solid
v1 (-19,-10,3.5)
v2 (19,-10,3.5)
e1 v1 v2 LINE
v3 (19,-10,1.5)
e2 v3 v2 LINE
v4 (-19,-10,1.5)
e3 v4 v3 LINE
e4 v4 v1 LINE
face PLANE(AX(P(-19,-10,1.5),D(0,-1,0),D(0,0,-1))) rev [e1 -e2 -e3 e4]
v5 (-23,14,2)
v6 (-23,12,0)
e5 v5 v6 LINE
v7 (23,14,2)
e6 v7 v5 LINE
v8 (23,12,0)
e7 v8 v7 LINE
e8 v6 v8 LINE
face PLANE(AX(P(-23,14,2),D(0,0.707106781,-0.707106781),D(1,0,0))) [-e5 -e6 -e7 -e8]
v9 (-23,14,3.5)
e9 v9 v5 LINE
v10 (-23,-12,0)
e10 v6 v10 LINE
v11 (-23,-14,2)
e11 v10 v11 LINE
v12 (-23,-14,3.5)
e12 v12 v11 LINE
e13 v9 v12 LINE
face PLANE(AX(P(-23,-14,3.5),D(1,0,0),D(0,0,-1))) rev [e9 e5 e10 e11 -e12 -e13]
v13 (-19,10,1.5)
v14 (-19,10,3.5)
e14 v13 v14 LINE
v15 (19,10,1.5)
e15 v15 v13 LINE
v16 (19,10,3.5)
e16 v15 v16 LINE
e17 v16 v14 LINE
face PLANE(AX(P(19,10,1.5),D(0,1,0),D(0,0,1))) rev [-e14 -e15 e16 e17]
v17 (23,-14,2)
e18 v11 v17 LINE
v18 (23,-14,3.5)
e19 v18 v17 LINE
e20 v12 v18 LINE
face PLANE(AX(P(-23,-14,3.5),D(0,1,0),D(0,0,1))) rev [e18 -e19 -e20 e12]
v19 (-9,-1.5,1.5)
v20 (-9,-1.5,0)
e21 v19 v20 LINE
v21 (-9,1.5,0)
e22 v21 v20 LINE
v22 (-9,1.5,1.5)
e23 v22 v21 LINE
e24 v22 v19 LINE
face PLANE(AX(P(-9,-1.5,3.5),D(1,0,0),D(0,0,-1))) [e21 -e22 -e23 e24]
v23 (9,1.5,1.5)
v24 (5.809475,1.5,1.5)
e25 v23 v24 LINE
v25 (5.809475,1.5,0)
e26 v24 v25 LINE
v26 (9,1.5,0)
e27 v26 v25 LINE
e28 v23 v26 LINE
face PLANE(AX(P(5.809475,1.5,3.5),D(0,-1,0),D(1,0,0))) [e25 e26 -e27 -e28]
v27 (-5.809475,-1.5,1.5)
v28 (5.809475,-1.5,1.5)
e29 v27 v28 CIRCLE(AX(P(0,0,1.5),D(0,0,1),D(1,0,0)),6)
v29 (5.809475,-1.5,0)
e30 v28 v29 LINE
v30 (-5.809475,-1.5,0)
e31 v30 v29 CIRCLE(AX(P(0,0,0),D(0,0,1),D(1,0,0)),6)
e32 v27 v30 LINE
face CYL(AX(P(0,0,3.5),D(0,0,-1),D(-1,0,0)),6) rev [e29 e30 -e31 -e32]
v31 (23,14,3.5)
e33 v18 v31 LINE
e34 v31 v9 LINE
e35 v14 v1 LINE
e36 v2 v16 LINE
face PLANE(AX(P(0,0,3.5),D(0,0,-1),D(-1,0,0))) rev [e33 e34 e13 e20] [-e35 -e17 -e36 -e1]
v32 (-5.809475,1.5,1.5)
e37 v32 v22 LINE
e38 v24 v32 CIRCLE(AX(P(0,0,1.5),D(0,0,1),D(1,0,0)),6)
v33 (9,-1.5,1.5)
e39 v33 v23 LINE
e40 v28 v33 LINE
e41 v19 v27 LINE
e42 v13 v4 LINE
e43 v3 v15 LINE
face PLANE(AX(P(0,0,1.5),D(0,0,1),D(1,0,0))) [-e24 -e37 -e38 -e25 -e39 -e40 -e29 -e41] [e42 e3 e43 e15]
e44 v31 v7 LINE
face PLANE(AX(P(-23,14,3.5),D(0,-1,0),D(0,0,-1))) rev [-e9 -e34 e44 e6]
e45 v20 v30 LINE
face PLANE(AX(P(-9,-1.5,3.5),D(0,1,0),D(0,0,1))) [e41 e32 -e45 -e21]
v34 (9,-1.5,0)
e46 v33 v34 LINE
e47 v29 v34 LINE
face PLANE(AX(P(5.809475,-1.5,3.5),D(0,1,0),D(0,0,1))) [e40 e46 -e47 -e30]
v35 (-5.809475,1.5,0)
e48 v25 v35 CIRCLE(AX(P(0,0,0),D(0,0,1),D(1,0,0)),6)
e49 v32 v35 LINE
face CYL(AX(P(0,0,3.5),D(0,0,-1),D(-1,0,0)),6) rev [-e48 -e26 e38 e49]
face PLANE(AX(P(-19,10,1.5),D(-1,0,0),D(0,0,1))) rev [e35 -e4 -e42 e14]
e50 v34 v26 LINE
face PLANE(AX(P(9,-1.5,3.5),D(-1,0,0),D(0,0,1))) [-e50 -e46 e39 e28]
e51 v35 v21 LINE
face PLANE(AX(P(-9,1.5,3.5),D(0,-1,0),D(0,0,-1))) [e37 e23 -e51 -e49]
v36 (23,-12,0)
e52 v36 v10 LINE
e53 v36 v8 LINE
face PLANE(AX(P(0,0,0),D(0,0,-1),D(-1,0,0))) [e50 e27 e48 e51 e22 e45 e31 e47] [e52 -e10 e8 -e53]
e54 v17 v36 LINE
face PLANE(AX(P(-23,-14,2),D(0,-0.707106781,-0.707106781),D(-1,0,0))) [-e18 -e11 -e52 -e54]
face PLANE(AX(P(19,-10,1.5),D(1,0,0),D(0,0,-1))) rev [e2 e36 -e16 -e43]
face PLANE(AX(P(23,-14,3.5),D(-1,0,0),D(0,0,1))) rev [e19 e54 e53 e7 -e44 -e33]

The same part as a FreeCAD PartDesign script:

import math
import FreeCAD as App
import Part
import Sketcher


def edges_at(feature, points):
    """Names of the edges that pass closest to the given points."""
    edges = feature.Shape.Edges
    near = lambda p: min(range(len(edges)), key=lambda i: edges[i].distToShape(Part.Vertex(*p))[0])
    return sorted({f"Edge{near(p) + 1}" for p in points})


def add_polygon(sketch, points):
    """Adds a closed chain of lines whose ends are joined by coincident constraints."""
    first, n = sketch.GeometryCount, len(points)
    for a, b in zip(points, points[1:] + points[:1]):
        sketch.addGeometry(Part.LineSegment(App.Vector(*a, 0), App.Vector(*b, 0)), False)
    for i in range(n):
        sketch.addConstraint(Sketcher.Constraint("Coincident", first + i, 2, first + (i + 1) % n, 1))

doc = App.newDocument("Part")
body = doc.addObject("PartDesign::Body", "Body")

sketch1 = body.newObject("Sketcher::SketchObject", "Sketch")
sketch1.AttachmentSupport = (doc.getObject("XY_Plane"), [""])
sketch1.MapMode = "FlatFace"
add_polygon(sketch1, [(-23, 14), (-23, -14), (23, -14), (23, 14)])
sketch1.addGeometry(Part.ArcOfCircle(Part.Circle(App.Vector(0, 0, 0), App.Vector(0, 0, 1), 6), math.radians(14), math.radians(166)), False)
sketch1.addGeometry(Part.LineSegment(App.Vector(5.8, 1.5, 0), App.Vector(9, 1.5, 0)), False)
sketch1.addGeometry(Part.LineSegment(App.Vector(9, 1.5, 0), App.Vector(9, -1.5, 0)), False)
sketch1.addGeometry(Part.LineSegment(App.Vector(9, -1.5, 0), App.Vector(5.8, -1.5, 0)), False)
sketch1.addGeometry(Part.ArcOfCircle(Part.Circle(App.Vector(0, 0, 0), App.Vector(0, 0, 1), 6), math.radians(-166), math.radians(-14)), False)
sketch1.addGeometry(Part.LineSegment(App.Vector(-5.8, -1.5, 0), App.Vector(-9, -1.5, 0)), False)
sketch1.addGeometry(Part.LineSegment(App.Vector(-9, -1.5, 0), App.Vector(-9, 1.5, 0)), False)
sketch1.addGeometry(Part.LineSegment(App.Vector(-9, 1.5, 0), App.Vector(-5.8, 1.5, 0)), False)
sketch1.addConstraint([
    Sketcher.Constraint("Coincident", 4, 1, 5, 1),
    Sketcher.Constraint("Coincident", 5, 2, 6, 1),
    Sketcher.Constraint("Coincident", 6, 2, 7, 1),
    Sketcher.Constraint("Coincident", 7, 2, 8, 2),
    Sketcher.Constraint("Coincident", 8, 1, 9, 1),
    Sketcher.Constraint("Coincident", 9, 2, 10, 1),
    Sketcher.Constraint("Coincident", 10, 2, 11, 1),
    Sketcher.Constraint("Coincident", 11, 2, 4, 2),
    Sketcher.Constraint("Vertical", 0),
    Sketcher.Constraint("Horizontal", 1),
    Sketcher.Constraint("Vertical", 2),
    Sketcher.Constraint("Horizontal", 3),
    Sketcher.Constraint("Horizontal", 5),
    Sketcher.Constraint("Vertical", 6),
    Sketcher.Constraint("Horizontal", 7),
    Sketcher.Constraint("Horizontal", 9),
    Sketcher.Constraint("Vertical", 10),
    Sketcher.Constraint("Horizontal", 11),
    Sketcher.Constraint("Coincident", 4, 3, -1, 1),
    Sketcher.Constraint("Coincident", 8, 3, -1, 1),
    Sketcher.Constraint("Equal", 4, 8),
    Sketcher.Constraint("Symmetric", 0, 2, 2, 2, -1, 1),
    Sketcher.Constraint("Symmetric", 5, 2, 9, 2, -1, 1),
    Sketcher.Constraint("Horizontal", 7, 2, 8, 1),
    Sketcher.Constraint("Horizontal", 5, 2, 10, 2),
    Sketcher.Constraint("Radius", 4, 6.0),
    Sketcher.Constraint("DistanceX", 1, 1, 1, 2, 46.0),
    Sketcher.Constraint("DistanceY", 0, 2, 0, 1, 28.0),
    Sketcher.Constraint("DistanceY", 6, 2, 6, 1, 3.0),
    Sketcher.Constraint("DistanceX", -1, 1, 5, 2, 9.0),
])
pad1 = body.newObject("PartDesign::Pad", "Pad")
pad1.Profile = sketch1
pad1.Length = 3.5

sketch2 = body.newObject("Sketcher::SketchObject", "Sketch001")
sketch2.AttachmentSupport = (doc.getObject("XY_Plane"), [""])
sketch2.MapMode = "FlatFace"
sketch2.AttachmentOffset = App.Placement(App.Vector(0, 0, 3.5), App.Rotation())
add_polygon(sketch2, [(-19, 10), (-19, -10), (19, -10), (19, 10)])
sketch2.addConstraint([
    Sketcher.Constraint("Vertical", 0),
    Sketcher.Constraint("Horizontal", 1),
    Sketcher.Constraint("Vertical", 2),
    Sketcher.Constraint("Horizontal", 3),
    Sketcher.Constraint("Symmetric", 0, 2, 2, 2, -1, 1),
    Sketcher.Constraint("DistanceX", 1, 1, 1, 2, 38.0),
    Sketcher.Constraint("DistanceY", 0, 2, 0, 1, 20.0),
])
pocket1 = body.newObject("PartDesign::Pocket", "Pocket")
pocket1.Profile = sketch2
pocket1.Length = 2
doc.recompute()

chamfer = body.newObject("PartDesign::Chamfer", "Chamfer")
chamfer.Base = (pocket1, edges_at(pocket1, [(0, -14, 0), (0, 14, 0)]))
chamfer.Size = 2

doc.recompute()
